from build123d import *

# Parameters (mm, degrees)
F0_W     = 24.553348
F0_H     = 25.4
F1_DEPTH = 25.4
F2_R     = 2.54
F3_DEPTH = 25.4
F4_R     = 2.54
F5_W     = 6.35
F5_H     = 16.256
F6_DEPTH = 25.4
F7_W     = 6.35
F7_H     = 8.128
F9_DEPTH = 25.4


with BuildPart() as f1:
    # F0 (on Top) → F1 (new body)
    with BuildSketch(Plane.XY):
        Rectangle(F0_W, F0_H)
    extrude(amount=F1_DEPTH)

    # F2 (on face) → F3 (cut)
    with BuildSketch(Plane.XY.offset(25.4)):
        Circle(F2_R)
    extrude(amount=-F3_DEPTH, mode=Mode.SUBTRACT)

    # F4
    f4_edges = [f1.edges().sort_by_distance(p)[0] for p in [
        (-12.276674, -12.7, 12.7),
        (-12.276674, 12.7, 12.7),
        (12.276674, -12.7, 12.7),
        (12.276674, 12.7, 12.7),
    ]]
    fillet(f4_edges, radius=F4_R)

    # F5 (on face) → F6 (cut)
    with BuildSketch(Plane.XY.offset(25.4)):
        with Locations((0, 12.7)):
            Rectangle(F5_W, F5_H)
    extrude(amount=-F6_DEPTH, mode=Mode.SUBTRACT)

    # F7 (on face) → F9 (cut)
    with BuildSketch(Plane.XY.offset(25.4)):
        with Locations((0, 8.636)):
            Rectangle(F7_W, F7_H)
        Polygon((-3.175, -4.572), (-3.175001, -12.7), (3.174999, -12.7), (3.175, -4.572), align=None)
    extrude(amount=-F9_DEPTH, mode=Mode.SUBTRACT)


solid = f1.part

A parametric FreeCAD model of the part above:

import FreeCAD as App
import Part
import Sketcher
Q = App.Units.Quantity


def edges_at(feature, points):
    """Names of the edges that pass closest to the given points."""
    edges = feature.Shape.Edges
    near = lambda p: min(range(len(edges)), key=lambda i: edges[i].distToShape(Part.Vertex(*p))[0])
    return sorted({f"Edge{near(p) + 1}" for p in points})

doc = App.newDocument("Part")
body = doc.addObject("PartDesign::Body", "Body")

sketch1 = doc.addObject("Sketcher::SketchObject", "Sketch")
body.addObject(sketch1)
sketch1.AttachmentSupport = (doc.XY_Plane, [""])
sketch1.MapMode = "FlatFace"
sketch1.addGeometry([
    Part.LineSegment(App.Vector(-12, 13, 0), App.Vector(-12, -13, 0)),
    Part.LineSegment(App.Vector(-12, -13, 0), App.Vector(12, -13, 0)),
    Part.LineSegment(App.Vector(12, -13, 0), App.Vector(12, 13, 0)),
    Part.LineSegment(App.Vector(12, 13, 0), App.Vector(-12, 13, 0)),
], False)
sketch1.addConstraint([
    Sketcher.Constraint("Coincident", 0, 2, 1, 1),
    Sketcher.Constraint("Coincident", 1, 2, 2, 1),
    Sketcher.Constraint("Coincident", 2, 2, 3, 1),
    Sketcher.Constraint("Coincident", 3, 2, 0, 1),
    Sketcher.Constraint("Vertical", 0),
    Sketcher.Constraint("Horizontal", 1),
    Sketcher.Constraint("Vertical", 2),
    Sketcher.Constraint("Horizontal", 3),
    Sketcher.Constraint("Symmetric", 0, 2, 2, 2, -1, 1),
    Sketcher.Constraint("DistanceY", 0, 2, 0, 1, Q("1 in")),
    Sketcher.Constraint("DistanceX", 1, 1, 1, 2, 24.553348),
])
pad1 = doc.addObject("PartDesign::Pad", "Pad")
body.addObject(pad1)
pad1.Profile = sketch1
pad1.Length = Q("1 in")

sketch2 = doc.addObject("Sketcher::SketchObject", "Sketch001")
body.addObject(sketch2)
sketch2.AttachmentSupport = (doc.XY_Plane, [""])
sketch2.MapMode = "FlatFace"
sketch2.AttachmentOffset = App.Placement(App.Vector(0, 0, 1 * 25.4), App.Rotation())
sketch2.addGeometry(Part.Circle(App.Vector(0, 0, 0), App.Vector(0, 0, 1), 2.5), False)
sketch2.addConstraint([
    Sketcher.Constraint("Coincident", 0, 3, -1, 1),
    Sketcher.Constraint("Diameter", 0, Q("0.2 in")),
])
pocket1 = doc.addObject("PartDesign::Pocket", "Pocket")
body.addObject(pocket1)
pocket1.Profile = sketch2
pocket1.Length = Q("1 in")
doc.recompute()

fillet = doc.addObject("PartDesign::Fillet", "Fillet")
body.addObject(fillet)
fillet.Base = (pocket1, edges_at(pocket1, [
    (-12.277, -12.7, 12.7),
    (-12.277, 12.7, 12.7),
    (12.277, -12.7, 12.7),
    (12.277, 12.7, 12.7),
]))
fillet.Radius = Q("0.1 in")

sketch3 = doc.addObject("Sketcher::SketchObject", "Sketch002")
body.addObject(sketch3)
sketch3.AttachmentSupport = (doc.XY_Plane, [""])
sketch3.MapMode = "FlatFace"
sketch3.AttachmentOffset = App.Placement(App.Vector(0, 0, 1 * 25.4), App.Rotation())
sketch3.addGeometry([
    Part.LineSegment(App.Vector(-3, 21, 0), App.Vector(-3, 5, 0)),
    Part.LineSegment(App.Vector(-3, 5, 0), App.Vector(3, 5, 0)),
    Part.LineSegment(App.Vector(3, 5, 0), App.Vector(3, 21, 0)),
    Part.LineSegment(App.Vector(3, 21, 0), App.Vector(-3, 21, 0)),
], False)
sketch3.addConstraint([
    Sketcher.Constraint("Coincident", 0, 2, 1, 1),
    Sketcher.Constraint("Coincident", 1, 2, 2, 1),
    Sketcher.Constraint("Coincident", 2, 2, 3, 1),
    Sketcher.Constraint("Coincident", 3, 2, 0, 1),
    Sketcher.Constraint("Vertical", 0),
    Sketcher.Constraint("Horizontal", 1),
    Sketcher.Constraint("Vertical", 2),
    Sketcher.Constraint("Horizontal", 3),
    Sketcher.Constraint("DistanceX", 1, 1, 1, 2, Q("0.25 in")),
    Sketcher.Constraint("DistanceY", 0, 2, 0, 1, Q("0.64 in")),
    Sketcher.Constraint("DistanceY", -1, 1, 0, 2, Q("0.18 in")),
    Sketcher.Constraint("DistanceX", 0, 2, -1, 1, Q("0.125 in")),
])
pocket2 = doc.addObject("PartDesign::Pocket", "Pocket001")
body.addObject(pocket2)
pocket2.Profile = sketch3
pocket2.Length = Q("1 in")

sketch4 = doc.addObject("Sketcher::SketchObject", "Sketch003")
body.addObject(sketch4)
sketch4.AttachmentSupport = (doc.XY_Plane, [""])
sketch4.MapMode = "FlatFace"
sketch4.AttachmentOffset = App.Placement(App.Vector(0, 0, 1 * 25.4), App.Rotation())
sketch4.addGeometry([
    Part.LineSegment(App.Vector(-3, 13, 0), App.Vector(-3, 5, 0)),
    Part.LineSegment(App.Vector(-3, 5, 0), App.Vector(3, 5, 0)),
    Part.LineSegment(App.Vector(3, 5, 0), App.Vector(3, 13, 0)),
    Part.LineSegment(App.Vector(3, 13, 0), App.Vector(-3, 13, 0)),
    Part.LineSegment(App.Vector(-3, -5, 0), App.Vector(-3, -13, 0)),
    Part.LineSegment(App.Vector(-3, -13, 0), App.Vector(3, -13, 0)),
    Part.LineSegment(App.Vector(3, -13, 0), App.Vector(3, -5, 0)),
    Part.LineSegment(App.Vector(3, -5, 0), App.Vector(-3, -5, 0)),
], False)
sketch4.addConstraint([
    Sketcher.Constraint("Coincident", 0, 2, 1, 1),
    Sketcher.Constraint("Coincident", 1, 2, 2, 1),
    Sketcher.Constraint("Coincident", 2, 2, 3, 1),
    Sketcher.Constraint("Coincident", 3, 2, 0, 1),
    Sketcher.Constraint("Coincident", 4, 2, 5, 1),
    Sketcher.Constraint("Coincident", 5, 2, 6, 1),
    Sketcher.Constraint("Coincident", 6, 2, 7, 1),
    Sketcher.Constraint("Coincident", 7, 2, 4, 1),
    Sketcher.Constraint("Vertical", 0),
    Sketcher.Constraint("Horizontal", 1),
    Sketcher.Constraint("Vertical", 2),
    Sketcher.Constraint("Horizontal", 3),
    Sketcher.Constraint("Vertical", 4),
    Sketcher.Constraint("Horizontal", 5),
    Sketcher.Constraint("Vertical", 6),
    Sketcher.Constraint("Horizontal", 7),
    Sketcher.Constraint("Symmetric", 2, 2, 4, 2, -1, 1),
    Sketcher.Constraint("Symmetric", 0, 2, 6, 2, -1, 1),
    Sketcher.Constraint("Vertical", 3, 2, 4, 2),
    Sketcher.Constraint("DistanceY", 4, 2, 3, 2, Q("1 in")),
    Sketcher.Constraint("DistanceX", 1, 1, 1, 2, Q("0.25 in")),
    Sketcher.Constraint("DistanceY", 0, 2, 0, 1, Q("0.32 in")),
])
pocket3 = doc.addObject("PartDesign::Pocket", "Pocket002")
body.addObject(pocket3)
pocket3.Profile = sketch4
pocket3.Length = Q("1 in")

doc.recompute()
